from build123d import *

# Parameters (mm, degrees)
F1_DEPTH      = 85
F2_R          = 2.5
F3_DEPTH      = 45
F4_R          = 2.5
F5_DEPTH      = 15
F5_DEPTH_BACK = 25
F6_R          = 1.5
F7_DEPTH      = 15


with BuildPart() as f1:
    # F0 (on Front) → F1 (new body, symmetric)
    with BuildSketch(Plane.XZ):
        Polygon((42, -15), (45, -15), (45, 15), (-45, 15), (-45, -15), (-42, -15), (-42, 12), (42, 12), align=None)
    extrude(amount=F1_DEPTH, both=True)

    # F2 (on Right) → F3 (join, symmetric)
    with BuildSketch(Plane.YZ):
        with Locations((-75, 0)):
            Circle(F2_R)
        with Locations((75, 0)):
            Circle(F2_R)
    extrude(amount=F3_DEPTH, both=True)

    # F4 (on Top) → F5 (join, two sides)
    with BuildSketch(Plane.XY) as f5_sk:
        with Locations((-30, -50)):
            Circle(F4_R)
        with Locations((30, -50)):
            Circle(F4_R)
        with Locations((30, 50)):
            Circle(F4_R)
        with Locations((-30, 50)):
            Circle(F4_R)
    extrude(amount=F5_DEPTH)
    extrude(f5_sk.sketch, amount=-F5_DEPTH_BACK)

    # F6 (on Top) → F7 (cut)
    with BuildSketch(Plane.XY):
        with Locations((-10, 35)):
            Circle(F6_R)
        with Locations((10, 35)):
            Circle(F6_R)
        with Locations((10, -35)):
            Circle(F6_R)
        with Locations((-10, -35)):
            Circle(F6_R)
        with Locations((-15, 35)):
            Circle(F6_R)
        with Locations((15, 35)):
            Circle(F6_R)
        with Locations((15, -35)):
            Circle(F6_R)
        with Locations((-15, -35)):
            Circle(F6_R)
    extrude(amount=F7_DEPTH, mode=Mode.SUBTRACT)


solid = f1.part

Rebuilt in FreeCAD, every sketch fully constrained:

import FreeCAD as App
import Part
import Sketcher
from FreeCAD import Vector

doc = App.newDocument("Part")
params = doc.addObject("Spreadsheet::Sheet", "Params")
for row, (alias, value) in enumerate([
    ("sketch1_width", "3 mm"),
    ("sketch1_width2", "90 mm"),
    ("sketch1_height", "30 mm"),
    ("sketch1_height2", "27 mm"),
    ("pad1_length", "170 mm"),
    ("sketch2_diameter", "5 mm"),
    ("pad2_length", "90 mm"),
    ("sketch3_diameter", "5 mm"),
    ("pad3_length", "15 mm"),
    ("pad3_length2", "25 mm"),
    ("sketch4_diameter", "3 mm"),
    ("pocket1_length", "15 mm"),
], start=1):
    params.set(f"A{row}", alias)
    params.set(f"B{row}", "=" + value)
    params.setAlias(f"B{row}", alias)

body = doc.addObject("PartDesign::Body", "Body")

# Sketch on XZ plane
sketch1 = body.newObject("Sketcher::SketchObject", "Sketch")
sketch1.AttachmentSupport = (doc.getObject("XZ_Plane"), [""])
sketch1.MapMode = "FlatFace"
sketch1.addGeometry(Part.LineSegment(Vector(42, -15, 0), Vector(45, -15, 0)), False)
sketch1.addGeometry(Part.LineSegment(Vector(45, -15, 0), Vector(45, 15, 0)), False)
sketch1.addGeometry(Part.LineSegment(Vector(45, 15, 0), Vector(-45, 15, 0)), False)
sketch1.addGeometry(Part.LineSegment(Vector(-45, 15, 0), Vector(-45, -15, 0)), False)
sketch1.addGeometry(Part.LineSegment(Vector(-45, -15, 0), Vector(-42, -15, 0)), False)
sketch1.addGeometry(Part.LineSegment(Vector(-42, -15, 0), Vector(-42, 12, 0)), False)
sketch1.addGeometry(Part.LineSegment(Vector(-42, 12, 0), Vector(42, 12, 0)), False)
sketch1.addGeometry(Part.LineSegment(Vector(42, 12, 0), Vector(42, -15, 0)), False)
sketch1.addConstraint(Sketcher.Constraint("Coincident", 0, 2, 1, 1))
sketch1.addConstraint(Sketcher.Constraint("Coincident", 1, 2, 2, 1))
sketch1.addConstraint(Sketcher.Constraint("Coincident", 2, 2, 3, 1))
sketch1.addConstraint(Sketcher.Constraint("Coincident", 3, 2, 4, 1))
sketch1.addConstraint(Sketcher.Constraint("Coincident", 4, 2, 5, 1))
sketch1.addConstraint(Sketcher.Constraint("Coincident", 5, 2, 6, 1))
sketch1.addConstraint(Sketcher.Constraint("Coincident", 6, 2, 7, 1))
sketch1.addConstraint(Sketcher.Constraint("Coincident", 7, 2, 0, 1))
sketch1.addConstraint(Sketcher.Constraint("Horizontal", 0))
sketch1.addConstraint(Sketcher.Constraint("Vertical", 1))
sketch1.addConstraint(Sketcher.Constraint("Horizontal", 2))
sketch1.addConstraint(Sketcher.Constraint("Vertical", 3))
sketch1.addConstraint(Sketcher.Constraint("Horizontal", 4))
sketch1.addConstraint(Sketcher.Constraint("Vertical", 5))
sketch1.addConstraint(Sketcher.Constraint("Horizontal", 6))
sketch1.addConstraint(Sketcher.Constraint("Vertical", 7))
sketch1.addConstraint(Sketcher.Constraint("Symmetric", 0, 2, 2, 2, -1, 1))
sketch1.addConstraint(Sketcher.Constraint("Symmetric", 4, 2, 7, 2, -2))
sketch1.addConstraint(Sketcher.Constraint("DistanceX", 0, 1, 0, 2, 3.0))
sketch1.addConstraint(Sketcher.Constraint("DistanceX", 2, 2, 2, 1, 90.0))
sketch1.addConstraint(Sketcher.Constraint("DistanceY", 1, 1, 1, 2, 30.0))
sketch1.addConstraint(Sketcher.Constraint("DistanceY", 5, 1, 5, 2, 27.0))
sketch1.setExpression("Constraints[18]", "Params.sketch1_width")
sketch1.setExpression("Constraints[19]", "Params.sketch1_width2")
sketch1.setExpression("Constraints[20]", "Params.sketch1_height")
sketch1.setExpression("Constraints[21]", "Params.sketch1_height2")
pad1 = body.newObject("PartDesign::Pad", "Pad")
pad1.Profile = sketch1
pad1.setExpression("Length", "Params.pad1_length")
pad1.Midplane = True

# Sketch on YZ plane
sketch2 = body.newObject("Sketcher::SketchObject", "Sketch001")
sketch2.AttachmentSupport = (doc.getObject("YZ_Plane"), [""])
sketch2.MapMode = "FlatFace"
sketch2.addGeometry(Part.Circle(Vector(-75, 0, 0), Vector(0, 0, 1), 2.5), False)
sketch2.addGeometry(Part.Circle(Vector(75, 0, 0), Vector(0, 0, 1), 2.5), False)
sketch2.addConstraint(Sketcher.Constraint("Equal", 0, 1))
sketch2.addConstraint(Sketcher.Constraint("Symmetric", 0, 3, 1, 3, -1, 1))
sketch2.addConstraint(Sketcher.Constraint("PointOnObject", 0, 3, -1))
sketch2.addConstraint(Sketcher.Constraint("Diameter", 0, 5.0))
sketch2.addConstraint(Sketcher.Constraint("DistanceX", 0, 3, -1, 1, 75.0))
sketch2.setExpression("Constraints[3]", "Params.sketch2_diameter")
pad2 = body.newObject("PartDesign::Pad", "Pad001")
pad2.Profile = sketch2
pad2.setExpression("Length", "Params.pad2_length")
pad2.Midplane = True

# Sketch on XY plane
sketch3 = body.newObject("Sketcher::SketchObject", "Sketch002")
sketch3.AttachmentSupport = (doc.getObject("XY_Plane"), [""])
sketch3.MapMode = "FlatFace"
sketch3.addGeometry(Part.Circle(Vector(-30, -50, 0), Vector(0, 0, 1), 2.5), False)
sketch3.addGeometry(Part.Circle(Vector(30, -50, 0), Vector(0, 0, 1), 2.5), False)
sketch3.addGeometry(Part.Circle(Vector(30, 50, 0), Vector(0, 0, 1), 2.5), False)
sketch3.addGeometry(Part.Circle(Vector(-30, 50, 0), Vector(0, 0, 1), 2.5), False)
sketch3.addConstraint(Sketcher.Constraint("Equal", 0, 1))
sketch3.addConstraint(Sketcher.Constraint("Equal", 1, 2))
sketch3.addConstraint(Sketcher.Constraint("Equal", 2, 3))
sketch3.addConstraint(Sketcher.Constraint("Symmetric", 0, 3, 2, 3, -1, 1))
sketch3.addConstraint(Sketcher.Constraint("Symmetric", 1, 3, 3, 3, -1, 1))
sketch3.addConstraint(Sketcher.Constraint("Symmetric", 0, 3, 1, 3, -2))
sketch3.addConstraint(Sketcher.Constraint("Diameter", 0, 5.0))
sketch3.addConstraint(Sketcher.Constraint("DistanceX", 0, 3, -1, 1, 30.0))
sketch3.addConstraint(Sketcher.Constraint("DistanceY", 0, 3, -1, 1, 50.0))
sketch3.setExpression("Constraints[6]", "Params.sketch3_diameter")
pad3 = body.newObject("PartDesign::Pad", "Pad002")
pad3.Profile = sketch3
pad3.Type = "TwoLengths"
pad3.setExpression("Length", "Params.pad3_length")
pad3.setExpression("Length2", "Params.pad3_length2")

# Sketch on XY plane
sketch4 = body.newObject("Sketcher::SketchObject", "Sketch003")
sketch4.AttachmentSupport = (doc.getObject("XY_Plane"), [""])
sketch4.MapMode = "FlatFace"
sketch4.addGeometry(Part.Circle(Vector(-10, 35, 0), Vector(0, 0, 1), 1.5), False)
sketch4.addGeometry(Part.Circle(Vector(10, 35, 0), Vector(0, 0, 1), 1.5), False)
sketch4.addGeometry(Part.Circle(Vector(10, -35, 0), Vector(0, 0, 1), 1.5), False)
sketch4.addGeometry(Part.Circle(Vector(-10, -35, 0), Vector(0, 0, 1), 1.5), False)
sketch4.addGeometry(Part.Circle(Vector(-15, 35, 0), Vector(0, 0, 1), 1.5), False)
sketch4.addGeometry(Part.Circle(Vector(15, 35, 0), Vector(0, 0, 1), 1.5), False)
sketch4.addGeometry(Part.Circle(Vector(15, -35, 0), Vector(0, 0, 1), 1.5), False)
sketch4.addGeometry(Part.Circle(Vector(-15, -35, 0), Vector(0, 0, 1), 1.5), False)
sketch4.addConstraint(Sketcher.Constraint("Equal", 0, 1))
sketch4.addConstraint(Sketcher.Constraint("Equal", 1, 2))
sketch4.addConstraint(Sketcher.Constraint("Equal", 2, 3))
sketch4.addConstraint(Sketcher.Constraint("Equal", 3, 4))
sketch4.addConstraint(Sketcher.Constraint("Equal", 4, 5))
sketch4.addConstraint(Sketcher.Constraint("Equal", 5, 6))
sketch4.addConstraint(Sketcher.Constraint("Equal", 6, 7))
sketch4.addConstraint(Sketcher.Constraint("Symmetric", 0, 3, 2, 3, -1, 1))
sketch4.addConstraint(Sketcher.Constraint("Symmetric", 1, 3, 3, 3, -1, 1))
sketch4.addConstraint(Sketcher.Constraint("Symmetric", 4, 3, 6, 3, -1, 1))
sketch4.addConstraint(Sketcher.Constraint("Symmetric", 5, 3, 7, 3, -1, 1))
sketch4.addConstraint(Sketcher.Constraint("Symmetric", 0, 3, 1, 3, -2))
sketch4.addConstraint(Sketcher.Constraint("Symmetric", 4, 3, 5, 3, -2))
sketch4.addConstraint(Sketcher.Constraint("Horizontal", 1, 3, 4, 3))
sketch4.addConstraint(Sketcher.Constraint("Diameter", 0, 3.0))
sketch4.addConstraint(Sketcher.Constraint("DistanceX", 0, 3, -1, 1, 10.0))
sketch4.addConstraint(Sketcher.Constraint("DistanceY", -1, 1, 0, 3, 35.0))
sketch4.addConstraint(Sketcher.Constraint("DistanceX", 4, 3, -1, 1, 15.0))
sketch4.setExpression("Constraints[14]", "Params.sketch4_diameter")
pocket1 = body.newObject("PartDesign::Pocket", "Pocket")
pocket1.Profile = sketch4
pocket1.setExpression("Length", "Params.pocket1_length")
pocket1.Reversed = True

doc.recompute()
